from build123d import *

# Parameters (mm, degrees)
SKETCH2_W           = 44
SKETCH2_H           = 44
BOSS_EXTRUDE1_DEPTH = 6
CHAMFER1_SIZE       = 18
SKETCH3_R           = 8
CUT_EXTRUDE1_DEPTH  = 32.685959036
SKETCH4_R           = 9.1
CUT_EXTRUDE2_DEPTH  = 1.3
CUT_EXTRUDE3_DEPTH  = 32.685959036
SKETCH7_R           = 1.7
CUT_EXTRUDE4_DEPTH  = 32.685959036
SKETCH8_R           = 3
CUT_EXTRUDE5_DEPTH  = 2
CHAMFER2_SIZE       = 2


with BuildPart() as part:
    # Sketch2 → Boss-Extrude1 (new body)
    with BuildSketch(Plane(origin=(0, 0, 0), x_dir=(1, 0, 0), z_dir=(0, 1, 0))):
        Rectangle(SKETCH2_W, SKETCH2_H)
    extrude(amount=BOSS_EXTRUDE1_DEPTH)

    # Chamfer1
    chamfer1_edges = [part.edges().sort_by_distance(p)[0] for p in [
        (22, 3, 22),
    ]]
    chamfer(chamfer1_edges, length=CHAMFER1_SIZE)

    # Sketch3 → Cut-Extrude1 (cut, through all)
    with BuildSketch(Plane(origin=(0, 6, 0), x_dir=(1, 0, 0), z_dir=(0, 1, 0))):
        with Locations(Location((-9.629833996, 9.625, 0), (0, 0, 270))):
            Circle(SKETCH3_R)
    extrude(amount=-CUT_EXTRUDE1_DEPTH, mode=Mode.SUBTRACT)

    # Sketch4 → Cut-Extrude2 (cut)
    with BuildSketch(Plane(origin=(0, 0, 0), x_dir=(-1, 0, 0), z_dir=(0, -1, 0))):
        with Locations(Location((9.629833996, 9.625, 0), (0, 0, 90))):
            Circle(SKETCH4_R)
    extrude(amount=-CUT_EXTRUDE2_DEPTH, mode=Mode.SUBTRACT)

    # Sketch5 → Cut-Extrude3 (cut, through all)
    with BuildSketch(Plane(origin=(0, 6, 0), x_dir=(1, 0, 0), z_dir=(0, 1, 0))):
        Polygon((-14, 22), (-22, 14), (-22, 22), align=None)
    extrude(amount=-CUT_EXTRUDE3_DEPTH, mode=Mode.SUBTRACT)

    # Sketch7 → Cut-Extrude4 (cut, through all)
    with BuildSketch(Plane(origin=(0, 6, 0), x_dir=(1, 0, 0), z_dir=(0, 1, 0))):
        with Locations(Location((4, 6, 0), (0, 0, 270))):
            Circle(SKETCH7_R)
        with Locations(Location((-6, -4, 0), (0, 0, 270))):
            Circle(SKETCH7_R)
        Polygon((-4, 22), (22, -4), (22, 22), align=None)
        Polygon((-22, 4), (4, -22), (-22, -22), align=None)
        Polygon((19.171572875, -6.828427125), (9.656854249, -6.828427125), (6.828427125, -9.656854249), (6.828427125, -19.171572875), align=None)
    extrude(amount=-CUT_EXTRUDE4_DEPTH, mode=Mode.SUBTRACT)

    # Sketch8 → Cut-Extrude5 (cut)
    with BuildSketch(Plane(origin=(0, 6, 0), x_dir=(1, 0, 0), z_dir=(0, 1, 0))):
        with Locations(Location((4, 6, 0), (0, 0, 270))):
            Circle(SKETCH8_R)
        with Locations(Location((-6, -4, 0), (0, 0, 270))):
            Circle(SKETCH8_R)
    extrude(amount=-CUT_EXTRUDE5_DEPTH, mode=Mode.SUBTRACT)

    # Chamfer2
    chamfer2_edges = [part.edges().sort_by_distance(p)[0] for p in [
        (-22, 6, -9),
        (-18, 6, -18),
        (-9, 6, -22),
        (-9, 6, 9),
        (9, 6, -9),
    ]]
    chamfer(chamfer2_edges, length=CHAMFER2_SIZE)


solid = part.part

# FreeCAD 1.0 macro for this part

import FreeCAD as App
import Part
import Sketcher

V = App.Vector
Q = App.Units.Quantity


def edges_at(feature, points):
    """Names of the edges that pass closest to the given points."""
    edges = feature.Shape.Edges
    near = lambda p: min(range(len(edges)), key=lambda i: edges[i].distToShape(Part.Vertex(*p))[0])
    return sorted({f"Edge{near(p) + 1}" for p in points})


def add_polygon(sketch, points):
    """Adds a closed chain of lines whose ends are joined by coincident constraints."""
    first, n = sketch.GeometryCount, len(points)
    for a, b in zip(points, points[1:] + points[:1]):
        sketch.addGeometry(Part.LineSegment(App.Vector(*a, 0), App.Vector(*b, 0)), False)
    for i in range(n):
        sketch.addConstraint(Sketcher.Constraint("Coincident", first + i, 2, first + (i + 1) % n, 1))

doc = App.newDocument("Part")
body = doc.addObject("PartDesign::Body", "Body")

# Sketch on XZ plane
sketch1 = body.newObject("Sketcher::SketchObject", "Sketch")
sketch1.AttachmentSupport = (doc.getObject("XZ_Plane"), [""])
sketch1.MapMode = "FlatFace"
add_polygon(sketch1, [(-22, -22), (-22, 22), (22, 22), (22, -22)])  # lines 0-3
sketch1.addConstraint(Sketcher.Constraint("Vertical", 0))
sketch1.addConstraint(Sketcher.Constraint("Horizontal", 1))
sketch1.addConstraint(Sketcher.Constraint("Vertical", 2))
sketch1.addConstraint(Sketcher.Constraint("Horizontal", 3))
sketch1.addConstraint(Sketcher.Constraint("Symmetric", 0, 2, 2, 2, -1, 1))
sketch1.addConstraint(Sketcher.Constraint("Equal", 3, 0))
sketch1.addConstraint(Sketcher.Constraint("DistanceX", 1, 1, 1, 2, Q("44 mm")))
pad1 = body.newObject("PartDesign::Pad", "Pad")
pad1.Profile = sketch1
pad1.Length = 6
pad1.Reversed = True
doc.recompute()

chamfer = body.newObject("PartDesign::Chamfer", "Chamfer")
chamfer.Base = (pad1, edges_at(pad1, [(22, 3, 22)]))
chamfer.Size = 18

# Sketch on XZ plane
sketch2 = body.newObject("Sketcher::SketchObject", "Sketch001")
sketch2.AttachmentSupport = (doc.getObject("XZ_Plane"), [""])
sketch2.MapMode = "FlatFace"
sketch2.AttachmentOffset = App.Placement(V(0, 0, -6), App.Rotation())
sketch2.addGeometry(Part.Circle(V(-10, -10, 0), V(0, 0, 1), 8), False)
sketch2.addConstraint(Sketcher.Constraint("Diameter", 0, Q("16 mm")))
sketch2.addConstraint(Sketcher.Constraint("DistanceY", 0, 3, -1, 1, Q("9.625 mm")))
sketch2.addConstraint(Sketcher.Constraint("DistanceX", 0, 3, -1, 1, Q("9.629834 mm")))
pocket1 = body.newObject("PartDesign::Pocket", "Pocket")
pocket1.Profile = sketch2
pocket1.Type = "ThroughAll"
pocket1.Reversed = True

# Sketch on XZ plane
sketch3 = body.newObject("Sketcher::SketchObject", "Sketch002")
sketch3.AttachmentSupport = (doc.getObject("XZ_Plane"), [""])
sketch3.MapMode = "FlatFace"
sketch3.addGeometry(Part.Circle(V(-10, -10, 0), V(0, 0, 1), 9), False)
sketch3.addConstraint(Sketcher.Constraint("Diameter", 0, Q("18.2 mm")))
sketch3.addConstraint(Sketcher.Constraint("DistanceY", 0, 3, -1, 1, Q("9.625 mm")))
sketch3.addConstraint(Sketcher.Constraint("DistanceX", 0, 3, -1, 1, Q("9.629834 mm")))
pocket2 = body.newObject("PartDesign::Pocket", "Pocket001")
pocket2.Profile = sketch3
pocket2.Length = 1.3

# Sketch on XZ plane
sketch4 = body.newObject("Sketcher::SketchObject", "Sketch003")
sketch4.AttachmentSupport = (doc.getObject("XZ_Plane"), [""])
sketch4.MapMode = "FlatFace"
sketch4.AttachmentOffset = App.Placement(V(0, 0, -6), App.Rotation())
add_polygon(sketch4, [(-22, -14), (-14, -22), (-22, -22)])  # lines 0-2
sketch4.addConstraint(Sketcher.Constraint("Horizontal", 1))
sketch4.addConstraint(Sketcher.Constraint("Vertical", 2))
sketch4.addConstraint(Sketcher.Constraint("Equal", 1, 2))
sketch4.addConstraint(Sketcher.Constraint("DistanceX", 1, 2, 1, 1, Q("8 mm")))
sketch4.addConstraint(Sketcher.Constraint("DistanceX", 0, 2, -1, 1, Q("14 mm")))
sketch4.addConstraint(Sketcher.Constraint("DistanceY", 0, 2, -1, 1, Q("22 mm")))
pocket3 = body.newObject("PartDesign::Pocket", "Pocket002")
pocket3.Profile = sketch4
pocket3.Type = "ThroughAll"
pocket3.Reversed = True

# Sketch on XZ plane
sketch5 = body.newObject("Sketcher::SketchObject", "Sketch004")
sketch5.AttachmentSupport = (doc.getObject("XZ_Plane"), [""])
sketch5.MapMode = "FlatFace"
sketch5.AttachmentOffset = App.Placement(V(0, 0, -6), App.Rotation())
sketch5.addGeometry(Part.Circle(V(4, -6, 0), V(0, 0, 1), 1.7), False)  # 0
sketch5.addGeometry(Part.Circle(V(-6, 4, 0), V(0, 0, 1), 1.7), False)  # 1
add_polygon(sketch5, [(-4, -22), (22, 4), (22, -22)])  # lines 2-4
add_polygon(sketch5, [(4, 22), (-22, -4), (-22, 22)])  # lines 5-7
add_polygon(sketch5, [(19.2, 6.8), (9.7, 6.8), (6.8, 9.7), (6.8, 19.2)])  # lines 8-11
sketch5.addConstraint(Sketcher.Constraint("Vertical", 3))
sketch5.addConstraint(Sketcher.Constraint("Horizontal", 4))
sketch5.addConstraint(Sketcher.Constraint("Vertical", 6))
sketch5.addConstraint(Sketcher.Constraint("Horizontal", 7))
sketch5.addConstraint(Sketcher.Constraint("Horizontal", 8))
sketch5.addConstraint(Sketcher.Constraint("Vertical", 10))
sketch5.addConstraint(Sketcher.Constraint("Equal", 0, 1))
sketch5.addConstraint(Sketcher.Constraint("Symmetric", 2, 2, 5, 2, -1, 1))
sketch5.addConstraint(Sketcher.Constraint("Symmetric", 4, 2, 7, 2, -1, 1))
sketch5.addConstraint(Sketcher.Constraint("Perpendicular", 5, 9))
sketch5.addConstraint(Sketcher.Constraint("Parallel", 9, 11))
sketch5.addConstraint(Sketcher.Constraint("Horizontal", 1, 3, 2, 2))
sketch5.addConstraint(Sketcher.Constraint("Vertical", 0, 3, 7, 2))
sketch5.addConstraint(Sketcher.Constraint("Equal", 7, 3))
sketch5.addConstraint(Sketcher.Constraint("Diameter", 0, Q("3.4 mm")))
sketch5.addConstraint(Sketcher.Constraint("DistanceX", 4, 2, 4, 1, Q("26 mm")))
sketch5.addConstraint(Sketcher.Constraint("Distance", 9, Q("4 mm")))
sketch5.addConstraint(Sketcher.Constraint("DistanceX", -1, 1, 0, 3, Q("4 mm")))
sketch5.addConstraint(Sketcher.Constraint("DistanceY", 0, 3, -1, 1, Q("6 mm")))
sketch5.addConstraint(Sketcher.Constraint("DistanceX", 1, 3, -1, 1, Q("6 mm")))
sketch5.addConstraint(Sketcher.Constraint("DistanceY", -1, 1, 1, 3, Q("4 mm")))
sketch5.addConstraint(Sketcher.Constraint("DistanceX", 8, 2, 8, 1, Q("9.514719 mm")))
sketch5.addConstraint(Sketcher.Constraint("DistanceX", -1, 1, 8, 2, Q("9.656854 mm")))
sketch5.addConstraint(Sketcher.Constraint("DistanceY", -1, 1, 8, 2, Q("6.828427 mm")))
pocket4 = body.newObject("PartDesign::Pocket", "Pocket003")
pocket4.Profile = sketch5
pocket4.Type = "ThroughAll"
pocket4.Reversed = True

# Sketch on XZ plane
sketch6 = body.newObject("Sketcher::SketchObject", "Sketch005")
sketch6.AttachmentSupport = (doc.getObject("XZ_Plane"), [""])
sketch6.MapMode = "FlatFace"
sketch6.AttachmentOffset = App.Placement(V(0, 0, -6), App.Rotation())
sketch6.addGeometry(Part.Circle(V(4, -6, 0), V(0, 0, 1), 3), False)
sketch6.addGeometry(Part.Circle(V(-6, 4, 0), V(0, 0, 1), 3), False)
sketch6.addConstraint(Sketcher.Constraint("Equal", 0, 1))
sketch6.addConstraint(Sketcher.Constraint("Diameter", 0, Q("6 mm")))
sketch6.addConstraint(Sketcher.Constraint("DistanceX", -1, 1, 0, 3, Q("4 mm")))
sketch6.addConstraint(Sketcher.Constraint("DistanceY", 0, 3, -1, 1, Q("6 mm")))
sketch6.addConstraint(Sketcher.Constraint("DistanceX", 1, 3, -1, 1, Q("6 mm")))
sketch6.addConstraint(Sketcher.Constraint("DistanceY", -1, 1, 1, 3, Q("4 mm")))
pocket5 = body.newObject("PartDesign::Pocket", "Pocket004")
pocket5.Profile = sketch6
pocket5.Length = 2
pocket5.Reversed = True
doc.recompute()

chamfer2 = body.newObject("PartDesign::Chamfer", "Chamfer001")
chamfer2.Base = (pocket5, edges_at(pocket5, [
    (-22, 6, -9),
    (-18, 6, -18),
    (-9, 6, -22),
    (-9, 6, 9),
    (9, 6, -9),
]))
chamfer2.Size = 2

doc.recompute()
